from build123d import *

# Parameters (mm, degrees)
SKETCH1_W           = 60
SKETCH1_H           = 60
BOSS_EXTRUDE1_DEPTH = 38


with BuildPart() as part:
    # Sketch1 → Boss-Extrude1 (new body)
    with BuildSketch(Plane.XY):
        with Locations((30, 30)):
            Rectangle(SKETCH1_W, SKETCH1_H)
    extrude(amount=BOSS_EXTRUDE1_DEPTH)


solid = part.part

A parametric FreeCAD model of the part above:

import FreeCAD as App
import Part
import Sketcher

V = App.Vector

doc = App.newDocument("Part")
body = doc.addObject("PartDesign::Body", "Body")

# Sketch on XY plane
sketch1 = body.newObject("Sketcher::SketchObject", "Sketch")
sketch1.AttachmentSupport = (doc.getObject("XY_Plane"), [""])
sketch1.MapMode = "FlatFace"
sketch1.addGeometry(Part.LineSegment(V(0, 60, 0), V(0, 0, 0)), False)
sketch1.addGeometry(Part.LineSegment(V(0, 0, 0), V(60, 0, 0)), False)
sketch1.addGeometry(Part.LineSegment(V(60, 0, 0), V(60, 60, 0)), False)
sketch1.addGeometry(Part.LineSegment(V(60, 60, 0), V(0, 60, 0)), False)
sketch1.addConstraint(Sketcher.Constraint("Coincident", 0, 2, 1, 1))
sketch1.addConstraint(Sketcher.Constraint("Coincident", 1, 2, 2, 1))
sketch1.addConstraint(Sketcher.Constraint("Coincident", 2, 2, 3, 1))
sketch1.addConstraint(Sketcher.Constraint("Coincident", 3, 2, 0, 1))
sketch1.addConstraint(Sketcher.Constraint("Vertical", 0))
sketch1.addConstraint(Sketcher.Constraint("Horizontal", 1))
sketch1.addConstraint(Sketcher.Constraint("Vertical", 2))
sketch1.addConstraint(Sketcher.Constraint("Horizontal", 3))
sketch1.addConstraint(Sketcher.Constraint("Coincident", 0, 2, -1, 1))
sketch1.addConstraint(Sketcher.Constraint("Equal", 3, 0))
sketch1.addConstraint(Sketcher.Constraint("DistanceX", 1, 1, 1, 2, 60.0))
pad1 = body.newObject("PartDesign::Pad", "Pad")
pad1.Profile = sketch1
pad1.Length = 38

doc.recompute()
